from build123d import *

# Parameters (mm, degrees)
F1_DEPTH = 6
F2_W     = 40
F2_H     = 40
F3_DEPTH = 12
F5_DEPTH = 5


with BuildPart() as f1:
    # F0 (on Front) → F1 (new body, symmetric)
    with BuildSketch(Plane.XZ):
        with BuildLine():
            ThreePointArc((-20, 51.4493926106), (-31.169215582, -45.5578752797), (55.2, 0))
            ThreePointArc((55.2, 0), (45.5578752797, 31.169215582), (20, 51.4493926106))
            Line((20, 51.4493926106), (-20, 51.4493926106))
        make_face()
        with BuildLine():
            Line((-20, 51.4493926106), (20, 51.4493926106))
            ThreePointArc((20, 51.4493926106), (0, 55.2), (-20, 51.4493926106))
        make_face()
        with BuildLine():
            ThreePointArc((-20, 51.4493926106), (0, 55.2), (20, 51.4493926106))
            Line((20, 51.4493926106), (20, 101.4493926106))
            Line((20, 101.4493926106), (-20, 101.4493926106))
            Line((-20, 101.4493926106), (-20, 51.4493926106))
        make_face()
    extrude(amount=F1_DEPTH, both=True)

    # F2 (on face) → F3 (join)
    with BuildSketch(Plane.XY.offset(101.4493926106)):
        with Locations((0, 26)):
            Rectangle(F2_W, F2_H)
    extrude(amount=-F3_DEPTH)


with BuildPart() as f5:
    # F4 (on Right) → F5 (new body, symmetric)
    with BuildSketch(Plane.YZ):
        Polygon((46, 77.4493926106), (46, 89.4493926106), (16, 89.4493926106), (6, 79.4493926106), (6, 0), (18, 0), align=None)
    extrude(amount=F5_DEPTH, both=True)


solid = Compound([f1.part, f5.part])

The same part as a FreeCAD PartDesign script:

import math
import FreeCAD as App
import Part
import Sketcher

V = App.Vector
Q = App.Units.Quantity


def add_polygon(sketch, points):
    """Adds a closed chain of lines whose ends are joined by coincident constraints."""
    first, n = sketch.GeometryCount, len(points)
    for a, b in zip(points, points[1:] + points[:1]):
        sketch.addGeometry(Part.LineSegment(App.Vector(*a, 0), App.Vector(*b, 0)), False)
    for i in range(n):
        sketch.addConstraint(Sketcher.Constraint("Coincident", first + i, 2, first + (i + 1) % n, 1))

doc = App.newDocument("Part")
body = doc.addObject("PartDesign::Body", "Body")

sketch1 = body.newObject("Sketcher::SketchObject", "Sketch")
sketch1.AttachmentSupport = (doc.getObject("XZ_Plane"), [""])
sketch1.MapMode = "FlatFace"
sketch1.addGeometry([
    Part.LineSegment(V(20, 51, 0), V(20, 101, 0)),
    Part.LineSegment(V(20, 101, 0), V(-20, 101, 0)),
    Part.LineSegment(V(-20, 101, 0), V(-20, 51, 0)),
    Part.ArcOfCircle(Part.Circle(V(0, 0, 0), V(0, 0, 1), 55), math.radians(111), math.radians(429)),
], False)
sketch1.addConstraint([
    Sketcher.Constraint("Coincident", 0, 2, 1, 1),
    Sketcher.Constraint("Coincident", 1, 2, 2, 1),
    Sketcher.Constraint("Coincident", 2, 2, 3, 1),
    Sketcher.Constraint("Coincident", 3, 2, 0, 1),
    Sketcher.Constraint("Vertical", 0),
    Sketcher.Constraint("Horizontal", 1),
    Sketcher.Constraint("Vertical", 2),
    Sketcher.Constraint("Coincident", 3, 3, -1, 1),
    Sketcher.Constraint("Horizontal", 2, 2, 3, 2),
    Sketcher.Constraint("Radius", 3, Q("55.2 mm")),
    Sketcher.Constraint("DistanceX", 1, 2, 1, 1, Q("40 mm")),
    Sketcher.Constraint("DistanceY", 0, 1, 0, 2, Q("50 mm")),
])
pad1 = body.newObject("PartDesign::Pad", "Pad")
pad1.Profile = sketch1
pad1.Length = 12
pad1.Midplane = True

sketch2 = body.newObject("Sketcher::SketchObject", "Sketch001")
sketch2.AttachmentSupport = (doc.getObject("XY_Plane"), [""])
sketch2.MapMode = "FlatFace"
sketch2.AttachmentOffset = App.Placement(V(0, 0, 101.449393), App.Rotation())
add_polygon(sketch2, [(-20, 46), (-20, 6), (20, 6), (20, 46)])
sketch2.addConstraint([
    Sketcher.Constraint("Vertical", 0),
    Sketcher.Constraint("Horizontal", 1),
    Sketcher.Constraint("Vertical", 2),
    Sketcher.Constraint("Horizontal", 3),
    Sketcher.Constraint("Equal", 3, 0),
    Sketcher.Constraint("DistanceX", 1, 1, 1, 2, Q("40 mm")),
    Sketcher.Constraint("DistanceX", 0, 2, -1, 1, Q("20 mm")),
    Sketcher.Constraint("DistanceY", -1, 1, 0, 2, Q("6 mm")),
])
pad2 = body.newObject("PartDesign::Pad", "Pad001")
pad2.Profile = sketch2
pad2.Length = 12
pad2.Reversed = True
body2 = doc.addObject("PartDesign::Body", "Body001")

sketch3 = body2.newObject("Sketcher::SketchObject", "Sketch002")
sketch3.AttachmentSupport = (doc.getObject("YZ_Plane001"), [""])
sketch3.MapMode = "FlatFace"
add_polygon(sketch3, [(46, 77), (46, 89), (16, 89), (6, 79), (6, 0), (18, 0)])
sketch3.addConstraint([
    Sketcher.Constraint("Vertical", 0),
    Sketcher.Constraint("Horizontal", 1),
    Sketcher.Constraint("Vertical", 3),
    Sketcher.Constraint("Horizontal", 4),
    Sketcher.Constraint("PointOnObject", 3, 2, -1),
    Sketcher.Constraint("Equal", 4, 0),
    Sketcher.Constraint("DistanceX", 1, 2, 1, 1, Q("30 mm")),
    Sketcher.Constraint("DistanceX", 4, 1, 4, 2, Q("12 mm")),
    Sketcher.Constraint("Angle", 2, Q("-135 deg")),
    Sketcher.Constraint("DistanceX", -1, 1, 0, 2, Q("46 mm")),
    Sketcher.Constraint("DistanceX", -1, 1, 2, 2, Q("6 mm")),
    Sketcher.Constraint("Distance", 5, Q("82.355379 mm")),
])
pad3 = body2.newObject("PartDesign::Pad", "Pad002")
pad3.Profile = sketch3
pad3.Length = 10
pad3.Midplane = True

doc.recompute()
